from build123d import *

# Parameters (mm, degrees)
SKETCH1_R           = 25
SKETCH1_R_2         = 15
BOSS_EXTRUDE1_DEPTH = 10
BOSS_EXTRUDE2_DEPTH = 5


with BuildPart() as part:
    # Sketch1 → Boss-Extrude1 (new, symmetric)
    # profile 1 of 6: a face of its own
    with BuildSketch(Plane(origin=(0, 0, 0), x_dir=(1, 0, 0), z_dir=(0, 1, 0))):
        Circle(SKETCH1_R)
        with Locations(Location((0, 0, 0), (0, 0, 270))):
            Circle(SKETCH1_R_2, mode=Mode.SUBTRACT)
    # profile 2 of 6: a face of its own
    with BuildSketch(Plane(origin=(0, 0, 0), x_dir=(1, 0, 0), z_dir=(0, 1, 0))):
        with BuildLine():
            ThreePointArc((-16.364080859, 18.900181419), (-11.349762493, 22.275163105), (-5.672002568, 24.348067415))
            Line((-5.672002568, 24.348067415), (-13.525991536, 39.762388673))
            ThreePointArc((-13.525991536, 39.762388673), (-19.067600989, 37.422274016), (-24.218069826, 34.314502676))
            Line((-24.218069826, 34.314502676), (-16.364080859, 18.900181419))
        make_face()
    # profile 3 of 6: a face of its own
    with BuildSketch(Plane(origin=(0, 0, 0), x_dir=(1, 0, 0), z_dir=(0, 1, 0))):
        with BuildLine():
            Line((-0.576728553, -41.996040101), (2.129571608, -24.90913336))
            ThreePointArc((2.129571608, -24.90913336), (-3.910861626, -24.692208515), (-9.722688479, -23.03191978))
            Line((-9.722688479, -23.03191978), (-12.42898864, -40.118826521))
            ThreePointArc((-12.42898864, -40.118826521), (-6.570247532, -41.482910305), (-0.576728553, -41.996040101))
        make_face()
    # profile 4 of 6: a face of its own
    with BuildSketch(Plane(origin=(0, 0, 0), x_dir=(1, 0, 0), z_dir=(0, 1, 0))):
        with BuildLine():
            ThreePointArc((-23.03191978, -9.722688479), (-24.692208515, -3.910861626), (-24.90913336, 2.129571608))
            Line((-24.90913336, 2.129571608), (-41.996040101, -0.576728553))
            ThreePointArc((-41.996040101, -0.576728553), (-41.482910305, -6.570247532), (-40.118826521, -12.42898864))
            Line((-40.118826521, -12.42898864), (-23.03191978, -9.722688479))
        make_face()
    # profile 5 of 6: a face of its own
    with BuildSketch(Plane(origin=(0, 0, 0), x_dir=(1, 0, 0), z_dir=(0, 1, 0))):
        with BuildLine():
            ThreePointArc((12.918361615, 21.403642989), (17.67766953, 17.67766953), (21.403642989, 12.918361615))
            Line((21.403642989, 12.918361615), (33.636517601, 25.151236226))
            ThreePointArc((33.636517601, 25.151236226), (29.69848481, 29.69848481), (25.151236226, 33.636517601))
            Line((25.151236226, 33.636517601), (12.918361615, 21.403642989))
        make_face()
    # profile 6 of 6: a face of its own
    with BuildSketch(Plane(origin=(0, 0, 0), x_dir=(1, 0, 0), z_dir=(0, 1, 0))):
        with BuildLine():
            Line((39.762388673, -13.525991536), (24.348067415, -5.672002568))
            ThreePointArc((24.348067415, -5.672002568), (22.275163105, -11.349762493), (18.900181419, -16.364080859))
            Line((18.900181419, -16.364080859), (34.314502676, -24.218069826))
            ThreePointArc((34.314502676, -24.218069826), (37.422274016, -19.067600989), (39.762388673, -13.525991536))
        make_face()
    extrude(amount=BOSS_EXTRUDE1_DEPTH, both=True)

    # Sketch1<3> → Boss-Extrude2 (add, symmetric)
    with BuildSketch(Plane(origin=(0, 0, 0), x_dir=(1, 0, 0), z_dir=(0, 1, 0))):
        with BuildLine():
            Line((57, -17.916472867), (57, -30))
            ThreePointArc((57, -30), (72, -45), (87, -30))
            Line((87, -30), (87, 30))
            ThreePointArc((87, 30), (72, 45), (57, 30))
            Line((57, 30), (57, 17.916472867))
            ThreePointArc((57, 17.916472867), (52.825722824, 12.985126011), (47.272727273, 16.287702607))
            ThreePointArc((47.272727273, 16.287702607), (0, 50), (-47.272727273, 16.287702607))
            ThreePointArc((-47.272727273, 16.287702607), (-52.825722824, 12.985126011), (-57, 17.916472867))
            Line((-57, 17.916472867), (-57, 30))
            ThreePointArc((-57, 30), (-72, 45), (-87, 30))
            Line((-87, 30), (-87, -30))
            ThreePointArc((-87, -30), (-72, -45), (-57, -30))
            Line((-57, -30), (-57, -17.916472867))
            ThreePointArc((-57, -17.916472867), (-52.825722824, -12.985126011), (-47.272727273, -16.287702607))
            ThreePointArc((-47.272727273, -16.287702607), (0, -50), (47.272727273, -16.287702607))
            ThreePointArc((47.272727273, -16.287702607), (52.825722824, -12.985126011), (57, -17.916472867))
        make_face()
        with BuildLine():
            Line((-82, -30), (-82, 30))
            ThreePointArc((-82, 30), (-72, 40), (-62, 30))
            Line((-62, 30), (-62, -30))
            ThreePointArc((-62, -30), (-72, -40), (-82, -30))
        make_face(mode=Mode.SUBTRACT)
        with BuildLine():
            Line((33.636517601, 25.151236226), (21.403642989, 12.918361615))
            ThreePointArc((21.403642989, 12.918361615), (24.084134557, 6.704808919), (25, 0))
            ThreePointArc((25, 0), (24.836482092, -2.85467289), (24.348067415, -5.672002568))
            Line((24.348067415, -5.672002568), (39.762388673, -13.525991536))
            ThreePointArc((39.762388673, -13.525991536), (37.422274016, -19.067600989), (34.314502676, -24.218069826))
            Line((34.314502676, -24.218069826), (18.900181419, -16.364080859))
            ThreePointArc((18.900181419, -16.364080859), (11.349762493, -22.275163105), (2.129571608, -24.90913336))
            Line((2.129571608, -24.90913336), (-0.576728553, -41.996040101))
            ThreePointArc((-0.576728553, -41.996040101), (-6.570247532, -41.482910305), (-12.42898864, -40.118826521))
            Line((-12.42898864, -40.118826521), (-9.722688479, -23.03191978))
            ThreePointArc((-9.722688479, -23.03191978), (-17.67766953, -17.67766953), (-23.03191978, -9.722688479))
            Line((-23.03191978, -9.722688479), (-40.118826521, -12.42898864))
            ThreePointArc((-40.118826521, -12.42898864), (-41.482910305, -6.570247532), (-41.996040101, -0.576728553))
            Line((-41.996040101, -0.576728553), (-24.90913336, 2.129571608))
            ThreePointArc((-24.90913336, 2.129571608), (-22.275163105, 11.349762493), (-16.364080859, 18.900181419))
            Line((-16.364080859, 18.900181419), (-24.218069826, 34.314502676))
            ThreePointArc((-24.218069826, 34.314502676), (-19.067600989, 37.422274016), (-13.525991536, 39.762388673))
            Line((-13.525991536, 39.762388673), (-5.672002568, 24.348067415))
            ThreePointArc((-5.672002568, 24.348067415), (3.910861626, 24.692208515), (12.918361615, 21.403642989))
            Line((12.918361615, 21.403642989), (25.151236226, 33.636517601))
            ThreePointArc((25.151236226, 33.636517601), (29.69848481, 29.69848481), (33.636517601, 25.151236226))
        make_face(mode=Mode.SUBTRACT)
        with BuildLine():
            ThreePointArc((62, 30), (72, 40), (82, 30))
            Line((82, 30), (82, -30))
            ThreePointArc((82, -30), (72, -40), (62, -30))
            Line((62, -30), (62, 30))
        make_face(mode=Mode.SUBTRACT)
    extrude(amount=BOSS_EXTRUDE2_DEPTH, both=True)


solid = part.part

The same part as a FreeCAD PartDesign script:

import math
import FreeCAD as App
import Part
import Sketcher

V = App.Vector
Q = App.Units.Quantity

doc = App.newDocument("Part")
params = doc.addObject("Spreadsheet::Sheet", "Params")
for row, (alias, value) in enumerate([
    ("sketch1_diameter", "30 mm"),
    ("sketch1_radius", "42 mm"),
    ("sketch1_radius2", "25 mm"),
    ("pad1_length", "20 mm"),
    ("sketch2_radius", "15 mm"),
    ("sketch2_radius2", "5 mm"),
    ("sketch2_radius3", "50 mm"),
    ("sketch2_radius4", "42 mm"),
    ("sketch2_radius5", "25 mm"),
    ("pad2_length", "10 mm"),
], start=1):
    params.set(f"A{row}", alias)
    params.set(f"B{row}", "=" + value)
    params.setAlias(f"B{row}", alias)

body = doc.addObject("PartDesign::Body", "Body")

sketch1 = body.newObject("Sketcher::SketchObject", "Sketch")
sketch1.AttachmentSupport = (doc.getObject("XZ_Plane"), [""])
sketch1.MapMode = "FlatFace"
sketch1.addGeometry(Part.LineSegment(V(21.403643, -12.918362, 0), V(33.636518, -25.151236, 0)), False)
sketch1.addGeometry(Part.ArcOfCircle(Part.Circle(V(0, 0, 0), V(0, 0, 1), 42), math.radians(-53.213211), math.radians(-36.786789)), False)
sketch1.addGeometry(Part.LineSegment(V(25.151236, -33.636518, 0), V(12.918362, -21.403643, 0)), False)
sketch1.addGeometry(Part.ArcOfCircle(Part.Circle(V(0, 0, 0), V(0, 0, 1), 25), math.radians(-103.11346), math.radians(-58.88654)), False)
sketch1.addGeometry(Part.LineSegment(V(-5.672003, -24.348067, 0), V(-13.525992, -39.762389, 0)), False)
sketch1.addGeometry(Part.ArcOfCircle(Part.Circle(V(0, 0, 0), V(0, 0, 1), 42), math.radians(-125.213211), math.radians(-108.786789)), False)
sketch1.addGeometry(Part.LineSegment(V(-24.21807, -34.314503, 0), V(-16.364081, -18.900181, 0)), False)
sketch1.addGeometry(Part.ArcOfCircle(Part.Circle(V(0, 0, 0), V(0, 0, 1), 25), math.radians(-175.11346), math.radians(-130.88654)), False)
sketch1.addGeometry(Part.LineSegment(V(-24.909133, -2.129572, 0), V(-41.99604, 0.576729, 0)), False)
sketch1.addGeometry(Part.ArcOfCircle(Part.Circle(V(0, 0, 0), V(0, 0, 1), 42), math.radians(162.786789), math.radians(179.213211)), False)
sketch1.addGeometry(Part.LineSegment(V(-40.118827, 12.428989, 0), V(-23.03192, 9.722688, 0)), False)
sketch1.addGeometry(Part.ArcOfCircle(Part.Circle(V(0, 0, 0), V(0, 0, 1), 25), math.radians(112.88654), math.radians(157.11346)), False)
sketch1.addGeometry(Part.LineSegment(V(-9.722688, 23.03192, 0), V(-12.428989, 40.118827, 0)), False)
sketch1.addGeometry(Part.ArcOfCircle(Part.Circle(V(0, 0, 0), V(0, 0, 1), 42), math.radians(90.786789), math.radians(107.213211)), False)
sketch1.addGeometry(Part.LineSegment(V(-0.576729, 41.99604, 0), V(2.129572, 24.909133, 0)), False)
sketch1.addGeometry(Part.ArcOfCircle(Part.Circle(V(0, 0, 0), V(0, 0, 1), 25), math.radians(40.88654), math.radians(85.11346)), False)
sketch1.addGeometry(Part.LineSegment(V(18.900181, 16.364081, 0), V(34.314503, 24.21807, 0)), False)
sketch1.addGeometry(Part.ArcOfCircle(Part.Circle(V(0, 0, 0), V(0, 0, 1), 42), math.radians(18.786789), math.radians(35.213211)), False)
sketch1.addGeometry(Part.LineSegment(V(39.762389, 13.525992, 0), V(24.348067, 5.672003, 0)), False)
sketch1.addGeometry(Part.ArcOfCircle(Part.Circle(V(0, 0, 0), V(0, 0, 1), 25), math.radians(-31.11346), math.radians(13.11346)), False)
sketch1.addGeometry(Part.Circle(V(0, 0, 0), V(0, 0, 1), 15), False)
sketch1.addConstraint(Sketcher.Constraint("Coincident", 0, 2, 1, 2))
sketch1.addConstraint(Sketcher.Constraint("Coincident", 1, 1, 2, 1))
sketch1.addConstraint(Sketcher.Constraint("Coincident", 2, 2, 3, 2))
sketch1.addConstraint(Sketcher.Constraint("Coincident", 3, 1, 4, 1))
sketch1.addConstraint(Sketcher.Constraint("Coincident", 4, 2, 5, 2))
sketch1.addConstraint(Sketcher.Constraint("Coincident", 5, 1, 6, 1))
sketch1.addConstraint(Sketcher.Constraint("Coincident", 6, 2, 7, 2))
sketch1.addConstraint(Sketcher.Constraint("Coincident", 7, 1, 8, 1))
sketch1.addConstraint(Sketcher.Constraint("Coincident", 8, 2, 9, 2))
sketch1.addConstraint(Sketcher.Constraint("Coincident", 9, 1, 10, 1))
sketch1.addConstraint(Sketcher.Constraint("Coincident", 10, 2, 11, 2))
sketch1.addConstraint(Sketcher.Constraint("Coincident", 11, 1, 12, 1))
sketch1.addConstraint(Sketcher.Constraint("Coincident", 12, 2, 13, 2))
sketch1.addConstraint(Sketcher.Constraint("Coincident", 13, 1, 14, 1))
sketch1.addConstraint(Sketcher.Constraint("Coincident", 14, 2, 15, 2))
sketch1.addConstraint(Sketcher.Constraint("Coincident", 15, 1, 16, 1))
sketch1.addConstraint(Sketcher.Constraint("Coincident", 16, 2, 17, 2))
sketch1.addConstraint(Sketcher.Constraint("Coincident", 17, 1, 18, 1))
sketch1.addConstraint(Sketcher.Constraint("Coincident", 18, 2, 19, 2))
sketch1.addConstraint(Sketcher.Constraint("Coincident", 19, 1, 0, 1))
sketch1.addConstraint(Sketcher.Constraint("Coincident", 1, 3, -1, 1))
sketch1.addConstraint(Sketcher.Constraint("Coincident", 3, 3, -1, 1))
sketch1.addConstraint(Sketcher.Constraint("Coincident", 5, 3, -1, 1))
sketch1.addConstraint(Sketcher.Constraint("Coincident", 7, 3, -1, 1))
sketch1.addConstraint(Sketcher.Constraint("Coincident", 9, 3, -1, 1))
sketch1.addConstraint(Sketcher.Constraint("Coincident", 11, 3, -1, 1))
sketch1.addConstraint(Sketcher.Constraint("Coincident", 13, 3, -1, 1))
sketch1.addConstraint(Sketcher.Constraint("Coincident", 15, 3, -1, 1))
sketch1.addConstraint(Sketcher.Constraint("Coincident", 17, 3, -1, 1))
sketch1.addConstraint(Sketcher.Constraint("Coincident", 19, 3, -1, 1))
sketch1.addConstraint(Sketcher.Constraint("Coincident", 20, 3, -1, 1))
sketch1.addConstraint(Sketcher.Constraint("Equal", 1, 5))
sketch1.addConstraint(Sketcher.Constraint("Equal", 3, 7))
sketch1.addConstraint(Sketcher.Constraint("Equal", 5, 9))
sketch1.addConstraint(Sketcher.Constraint("Equal", 7, 11))
sketch1.addConstraint(Sketcher.Constraint("Equal", 9, 13))
sketch1.addConstraint(Sketcher.Constraint("Equal", 11, 15))
sketch1.addConstraint(Sketcher.Constraint("Equal", 13, 17))
sketch1.addConstraint(Sketcher.Constraint("Equal", 15, 19))
sketch1.addConstraint(Sketcher.Constraint("Parallel", 0, 2))
sketch1.addConstraint(Sketcher.Constraint("Parallel", 4, 6))
sketch1.addConstraint(Sketcher.Constraint("Parallel", 8, 10))
sketch1.addConstraint(Sketcher.Constraint("Parallel", 12, 14))
sketch1.addConstraint(Sketcher.Constraint("Parallel", 16, 18))
sketch1.addConstraint(Sketcher.Constraint("Equal", 0, 2))
sketch1.addConstraint(Sketcher.Constraint("Equal", 2, 4))
sketch1.addConstraint(Sketcher.Constraint("Equal", 4, 6))
sketch1.addConstraint(Sketcher.Constraint("Equal", 6, 8))
sketch1.addConstraint(Sketcher.Constraint("Equal", 8, 10))
sketch1.addConstraint(Sketcher.Constraint("Equal", 10, 12))
sketch1.addConstraint(Sketcher.Constraint("Equal", 12, 14))
sketch1.addConstraint(Sketcher.Constraint("Equal", 14, 16))
sketch1.addConstraint(Sketcher.Constraint("Equal", 16, 18))
sketch1.addConstraint(Sketcher.Constraint("Diameter", 20, Q("30 mm")))
sketch1.addConstraint(Sketcher.Constraint("Radius", 1, Q("42 mm")))
sketch1.addConstraint(Sketcher.Constraint("Radius", 3, Q("25 mm")))
sketch1.addConstraint(Sketcher.Constraint("Angle", 0, Q("-45 deg")))
sketch1.addConstraint(Sketcher.Constraint("Angle", 4, Q("-117 deg")))
sketch1.addConstraint(Sketcher.Constraint("Angle", 8, Q("171 deg")))
sketch1.addConstraint(Sketcher.Constraint("Angle", 12, Q("99 deg")))
sketch1.addConstraint(Sketcher.Constraint("Angle", 16, Q("27 deg")))
sketch1.addConstraint(Sketcher.Constraint("DistanceX", -1, 1, 2, 2, Q("12.918362 mm")))
sketch1.setExpression("Constraints[53]", "Params.sketch1_diameter")
sketch1.setExpression("Constraints[54]", "Params.sketch1_radius")
sketch1.setExpression("Constraints[55]", "Params.sketch1_radius2")
pad1 = body.newObject("PartDesign::Pad", "Pad")
pad1.Profile = sketch1
pad1.setExpression("Length", "Params.pad1_length")
pad1.Midplane = True

sketch2 = body.newObject("Sketcher::SketchObject", "Sketch001")
sketch2.AttachmentSupport = (doc.getObject("XZ_Plane"), [""])
sketch2.MapMode = "FlatFace"
sketch2.addGeometry(Part.LineSegment(V(57, 17.916473, 0), V(57, 30, 0)), False)
sketch2.addGeometry(Part.ArcOfCircle(Part.Circle(V(72, 30, 0), V(0, 0, 1), 15), math.radians(0), math.radians(180)), False)
sketch2.addGeometry(Part.LineSegment(V(87, 30, 0), V(87, -30, 0)), False)
sketch2.addGeometry(Part.ArcOfCircle(Part.Circle(V(72, -30, 0), V(0, 0, 1), 15), math.radians(180), math.radians(360)), False)
sketch2.addGeometry(Part.LineSegment(V(57, -30, 0), V(57, -17.916473, 0)), False)
sketch2.addGeometry(Part.ArcOfCircle(Part.Circle(V(52, -17.916473, 0), V(0, 0, 1), 5), math.radians(0), math.radians(160.988735)), False)
sketch2.addGeometry(Part.ArcOfCircle(Part.Circle(V(0, 0, 0), V(0, 0, 1), 50), math.radians(-160.988735), math.radians(-19.011265)), False)
sketch2.addGeometry(Part.ArcOfCircle(Part.Circle(V(-52, -17.916473, 0), V(0, 0, 1), 5), math.radians(19.011265), math.radians(180)), False)
sketch2.addGeometry(Part.LineSegment(V(-57, -17.916473, 0), V(-57, -30, 0)), False)
sketch2.addGeometry(Part.ArcOfCircle(Part.Circle(V(-72, -30, 0), V(0, 0, 1), 15), math.radians(180), math.radians(360)), False)
sketch2.addGeometry(Part.LineSegment(V(-87, -30, 0), V(-87, 30, 0)), False)
sketch2.addGeometry(Part.ArcOfCircle(Part.Circle(V(-72, 30, 0), V(0, 0, 1), 15), math.radians(0), math.radians(180)), False)
sketch2.addGeometry(Part.LineSegment(V(-57, 30, 0), V(-57, 17.916473, 0)), False)
sketch2.addGeometry(Part.ArcOfCircle(Part.Circle(V(-52, 17.916473, 0), V(0, 0, 1), 5), math.radians(180), math.radians(340.988735)), False)
sketch2.addGeometry(Part.ArcOfCircle(Part.Circle(V(0, 0, 0), V(0, 0, 1), 50), math.radians(19.011265), math.radians(160.988735)), False)
sketch2.addGeometry(Part.ArcOfCircle(Part.Circle(V(52, 17.916473, 0), V(0, 0, 1), 5), math.radians(-160.988735), math.radians(0)), False)
sketch2.addGeometry(Part.ArcOfCircle(Part.Circle(V(0, 0, 0), V(0, 0, 1), 42), math.radians(-53.213211), math.radians(-36.786789)), False)
sketch2.addGeometry(Part.LineSegment(V(33.636518, -25.151236, 0), V(21.403643, -12.918362, 0)), False)
sketch2.addGeometry(Part.ArcOfCircle(Part.Circle(V(0, 0, 0), V(0, 0, 1), 25), math.radians(-31.11346), math.radians(0)), False)
sketch2.addGeometry(Part.ArcOfCircle(Part.Circle(V(0, 0, 0), V(0, 0, 1), 25), math.radians(0), math.radians(13.11346)), False)
sketch2.addGeometry(Part.LineSegment(V(24.348067, 5.672003, 0), V(39.762389, 13.525992, 0)), False)
sketch2.addGeometry(Part.ArcOfCircle(Part.Circle(V(0, 0, 0), V(0, 0, 1), 42), math.radians(18.786789), math.radians(35.213211)), False)
sketch2.addGeometry(Part.LineSegment(V(34.314503, 24.21807, 0), V(18.900181, 16.364081, 0)), False)
sketch2.addGeometry(Part.ArcOfCircle(Part.Circle(V(0, 0, 0), V(0, 0, 1), 25), math.radians(40.88654), math.radians(85.11346)), False)
sketch2.addGeometry(Part.LineSegment(V(2.129572, 24.909133, 0), V(-0.576729, 41.99604, 0)), False)
sketch2.addGeometry(Part.ArcOfCircle(Part.Circle(V(0, 0, 0), V(0, 0, 1), 42), math.radians(90.786789), math.radians(107.213211)), False)
sketch2.addGeometry(Part.LineSegment(V(-12.428989, 40.118827, 0), V(-9.722688, 23.03192, 0)), False)
sketch2.addGeometry(Part.ArcOfCircle(Part.Circle(V(0, 0, 0), V(0, 0, 1), 25), math.radians(112.88654), math.radians(157.11346)), False)
sketch2.addGeometry(Part.LineSegment(V(-23.03192, 9.722688, 0), V(-40.118827, 12.428989, 0)), False)
sketch2.addGeometry(Part.ArcOfCircle(Part.Circle(V(0, 0, 0), V(0, 0, 1), 42), math.radians(162.786789), math.radians(179.213211)), False)
sketch2.addGeometry(Part.LineSegment(V(-41.99604, 0.576729, 0), V(-24.909133, -2.129572, 0)), False)
sketch2.addGeometry(Part.ArcOfCircle(Part.Circle(V(0, 0, 0), V(0, 0, 1), 25), math.radians(-175.11346), math.radians(-130.88654)), False)
sketch2.addGeometry(Part.LineSegment(V(-16.364081, -18.900181, 0), V(-24.21807, -34.314503, 0)), False)
sketch2.addGeometry(Part.ArcOfCircle(Part.Circle(V(0, 0, 0), V(0, 0, 1), 42), math.radians(-125.213211), math.radians(-108.786789)), False)
sketch2.addGeometry(Part.LineSegment(V(-13.525992, -39.762389, 0), V(-5.672003, -24.348067, 0)), False)
sketch2.addGeometry(Part.ArcOfCircle(Part.Circle(V(0, 0, 0), V(0, 0, 1), 25), math.radians(-103.11346), math.radians(-58.88654)), False)
sketch2.addGeometry(Part.LineSegment(V(12.918362, -21.403643, 0), V(25.151236, -33.636518, 0)), False)
sketch2.addGeometry(Part.ArcOfCircle(Part.Circle(V(-72, 30, 0), V(0, 0, 1), 10), math.radians(0), math.radians(180)), False)
sketch2.addGeometry(Part.LineSegment(V(-82, 30, 0), V(-82, -30, 0)), False)
sketch2.addGeometry(Part.ArcOfCircle(Part.Circle(V(-72, -30, 0), V(0, 0, 1), 10), math.radians(180), math.radians(360)), False)
sketch2.addGeometry(Part.LineSegment(V(-62, -30, 0), V(-62, 30, 0)), False)
sketch2.addGeometry(Part.LineSegment(V(62, 30, 0), V(62, -30, 0)), False)
sketch2.addGeometry(Part.ArcOfCircle(Part.Circle(V(72, -30, 0), V(0, 0, 1), 10), math.radians(180), math.radians(360)), False)
sketch2.addGeometry(Part.LineSegment(V(82, -30, 0), V(82, 30, 0)), False)
sketch2.addGeometry(Part.ArcOfCircle(Part.Circle(V(72, 30, 0), V(0, 0, 1), 10), math.radians(0), math.radians(180)), False)
sketch2.addConstraint(Sketcher.Constraint("Tangent", 0, 2, 1, 2))
sketch2.addConstraint(Sketcher.Constraint("Tangent", 1, 1, 2, 1))
sketch2.addConstraint(Sketcher.Constraint("Tangent", 2, 2, 3, 2))
sketch2.addConstraint(Sketcher.Constraint("Tangent", 3, 1, 4, 1))
sketch2.addConstraint(Sketcher.Constraint("Tangent", 4, 2, 5, 1))
sketch2.addConstraint(Sketcher.Constraint("Tangent", 5, 2, 6, 2))
sketch2.addConstraint(Sketcher.Constraint("Tangent", 6, 1, 7, 1))
sketch2.addConstraint(Sketcher.Constraint("Tangent", 7, 2, 8, 1))
sketch2.addConstraint(Sketcher.Constraint("Tangent", 8, 2, 9, 2))
sketch2.addConstraint(Sketcher.Constraint("Tangent", 9, 1, 10, 1))
sketch2.addConstraint(Sketcher.Constraint("Tangent", 10, 2, 11, 2))
sketch2.addConstraint(Sketcher.Constraint("Tangent", 11, 1, 12, 1))
sketch2.addConstraint(Sketcher.Constraint("Tangent", 12, 2, 13, 1))
sketch2.addConstraint(Sketcher.Constraint("Tangent", 13, 2, 14, 2))
sketch2.addConstraint(Sketcher.Constraint("Tangent", 14, 1, 15, 1))
sketch2.addConstraint(Sketcher.Constraint("Tangent", 15, 2, 0, 1))
sketch2.addConstraint(Sketcher.Constraint("Coincident", 16, 2, 17, 1))
sketch2.addConstraint(Sketcher.Constraint("Coincident", 17, 2, 18, 1))
sketch2.addConstraint(Sketcher.Constraint("Tangent", 18, 2, 19, 1))
sketch2.addConstraint(Sketcher.Constraint("Coincident", 19, 2, 20, 1))
sketch2.addConstraint(Sketcher.Constraint("Coincident", 20, 2, 21, 1))
sketch2.addConstraint(Sketcher.Constraint("Coincident", 21, 2, 22, 1))
sketch2.addConstraint(Sketcher.Constraint("Coincident", 22, 2, 23, 1))
sketch2.addConstraint(Sketcher.Constraint("Coincident", 23, 2, 24, 1))
sketch2.addConstraint(Sketcher.Constraint("Coincident", 24, 2, 25, 1))
sketch2.addConstraint(Sketcher.Constraint("Coincident", 25, 2, 26, 1))
sketch2.addConstraint(Sketcher.Constraint("Coincident", 26, 2, 27, 1))
sketch2.addConstraint(Sketcher.Constraint("Coincident", 27, 2, 28, 1))
sketch2.addConstraint(Sketcher.Constraint("Coincident", 28, 2, 29, 1))
sketch2.addConstraint(Sketcher.Constraint("Coincident", 29, 2, 30, 1))
sketch2.addConstraint(Sketcher.Constraint("Coincident", 30, 2, 31, 1))
sketch2.addConstraint(Sketcher.Constraint("Coincident", 31, 2, 32, 1))
sketch2.addConstraint(Sketcher.Constraint("Coincident", 32, 2, 33, 1))
sketch2.addConstraint(Sketcher.Constraint("Coincident", 33, 2, 34, 1))
sketch2.addConstraint(Sketcher.Constraint("Coincident", 34, 2, 35, 1))
sketch2.addConstraint(Sketcher.Constraint("Coincident", 35, 2, 36, 1))
sketch2.addConstraint(Sketcher.Constraint("Coincident", 36, 2, 16, 1))
sketch2.addConstraint(Sketcher.Constraint("Tangent", 37, 2, 38, 1))
sketch2.addConstraint(Sketcher.Constraint("Tangent", 38, 2, 39, 1))
sketch2.addConstraint(Sketcher.Constraint("Tangent", 39, 2, 40, 1))
sketch2.addConstraint(Sketcher.Constraint("Tangent", 40, 2, 37, 1))
sketch2.addConstraint(Sketcher.Constraint("Tangent", 41, 2, 42, 1))
sketch2.addConstraint(Sketcher.Constraint("Tangent", 42, 2, 43, 1))
sketch2.addConstraint(Sketcher.Constraint("Tangent", 43, 2, 44, 1))
sketch2.addConstraint(Sketcher.Constraint("Tangent", 44, 2, 41, 1))
sketch2.addConstraint(Sketcher.Constraint("Vertical", 0))
sketch2.addConstraint(Sketcher.Constraint("Vertical", 2))
sketch2.addConstraint(Sketcher.Constraint("Vertical", 4))
sketch2.addConstraint(Sketcher.Constraint("Vertical", 8))
sketch2.addConstraint(Sketcher.Constraint("Vertical", 10))
sketch2.addConstraint(Sketcher.Constraint("Vertical", 12))
sketch2.addConstraint(Sketcher.Constraint("Vertical", 38))
sketch2.addConstraint(Sketcher.Constraint("Vertical", 40))
sketch2.addConstraint(Sketcher.Constraint("Vertical", 41))
sketch2.addConstraint(Sketcher.Constraint("Vertical", 43))
sketch2.addConstraint(Sketcher.Constraint("Coincident", 6, 3, -1, 1))
sketch2.addConstraint(Sketcher.Constraint("Coincident", 14, 3, -1, 1))
sketch2.addConstraint(Sketcher.Constraint("Coincident", 16, 3, -1, 1))
sketch2.addConstraint(Sketcher.Constraint("Coincident", 18, 3, -1, 1))
sketch2.addConstraint(Sketcher.Constraint("Coincident", 21, 3, -1, 1))
sketch2.addConstraint(Sketcher.Constraint("Coincident", 23, 3, -1, 1))
sketch2.addConstraint(Sketcher.Constraint("Coincident", 25, 3, -1, 1))
sketch2.addConstraint(Sketcher.Constraint("Coincident", 27, 3, -1, 1))
sketch2.addConstraint(Sketcher.Constraint("Coincident", 29, 3, -1, 1))
sketch2.addConstraint(Sketcher.Constraint("Coincident", 31, 3, -1, 1))
sketch2.addConstraint(Sketcher.Constraint("Coincident", 33, 3, -1, 1))
sketch2.addConstraint(Sketcher.Constraint("Coincident", 35, 3, -1, 1))
sketch2.addConstraint(Sketcher.Constraint("Coincident", 37, 3, 11, 3))
sketch2.addConstraint(Sketcher.Constraint("Coincident", 39, 3, 9, 3))
sketch2.addConstraint(Sketcher.Constraint("Coincident", 42, 3, 3, 3))
sketch2.addConstraint(Sketcher.Constraint("Coincident", 44, 3, 1, 3))
sketch2.addConstraint(Sketcher.Constraint("Equal", 5, 7))
sketch2.addConstraint(Sketcher.Constraint("Equal", 3, 9))
sketch2.addConstraint(Sketcher.Constraint("Equal", 7, 13))
sketch2.addConstraint(Sketcher.Constraint("Equal", 6, 14))
sketch2.addConstraint(Sketcher.Constraint("Equal", 13, 15))
sketch2.addConstraint(Sketcher.Constraint("Equal", 18, 19))
sketch2.addConstraint(Sketcher.Constraint("Equal", 16, 21))
sketch2.addConstraint(Sketcher.Constraint("Equal", 19, 23))
sketch2.addConstraint(Sketcher.Constraint("Equal", 21, 25))
sketch2.addConstraint(Sketcher.Constraint("Equal", 23, 27))
sketch2.addConstraint(Sketcher.Constraint("Equal", 25, 29))
sketch2.addConstraint(Sketcher.Constraint("Equal", 27, 31))
sketch2.addConstraint(Sketcher.Constraint("Equal", 29, 33))
sketch2.addConstraint(Sketcher.Constraint("Equal", 31, 35))
sketch2.addConstraint(Sketcher.Constraint("Equal", 39, 42))
sketch2.addConstraint(Sketcher.Constraint("Symmetric", 1, 3, 9, 3, -1, 1))
sketch2.addConstraint(Sketcher.Constraint("PointOnObject", 18, 2, -1))
sketch2.addConstraint(Sketcher.Constraint("Parallel", 20, 22))
sketch2.addConstraint(Sketcher.Constraint("Parallel", 24, 26))
sketch2.addConstraint(Sketcher.Constraint("Parallel", 28, 30))
sketch2.addConstraint(Sketcher.Constraint("Parallel", 32, 34))
sketch2.addConstraint(Sketcher.Constraint("Parallel", 17, 36))
sketch2.addConstraint(Sketcher.Constraint("Horizontal", 3, 3, 9, 3))
sketch2.addConstraint(Sketcher.Constraint("Horizontal", 1, 3, 11, 3))
sketch2.addConstraint(Sketcher.Constraint("Equal", 17, 20))
sketch2.addConstraint(Sketcher.Constraint("Equal", 20, 22))
sketch2.addConstraint(Sketcher.Constraint("Equal", 22, 24))
sketch2.addConstraint(Sketcher.Constraint("Equal", 24, 26))
sketch2.addConstraint(Sketcher.Constraint("Equal", 26, 28))
sketch2.addConstraint(Sketcher.Constraint("Equal", 28, 30))
sketch2.addConstraint(Sketcher.Constraint("Equal", 30, 32))
sketch2.addConstraint(Sketcher.Constraint("Equal", 32, 34))
sketch2.addConstraint(Sketcher.Constraint("Equal", 34, 36))
sketch2.addConstraint(Sketcher.Constraint("Radius", 1, Q("15 mm")))
sketch2.addConstraint(Sketcher.Constraint("Radius", 5, Q("5 mm")))
sketch2.addConstraint(Sketcher.Constraint("Radius", 6, Q("50 mm")))
sketch2.addConstraint(Sketcher.Constraint("Radius", 16, Q("42 mm")))
sketch2.addConstraint(Sketcher.Constraint("Radius", 18, Q("25 mm")))
sketch2.addConstraint(Sketcher.Constraint("Radius", 37, Q("10 mm")))
sketch2.addConstraint(Sketcher.Constraint("DistanceY", 2, 2, 2, 1, Q("60 mm")))
sketch2.addConstraint(Sketcher.Constraint("Angle", 17, Q("135 deg")))
sketch2.addConstraint(Sketcher.Constraint("Angle", 20, Q("27 deg")))
sketch2.addConstraint(Sketcher.Constraint("Angle", 24, Q("99 deg")))
sketch2.addConstraint(Sketcher.Constraint("Angle", 28, Q("171 deg")))
sketch2.addConstraint(Sketcher.Constraint("Angle", 32, Q("-117 deg")))
sketch2.addConstraint(Sketcher.Constraint("DistanceX", -1, 1, 1, 3, Q("72 mm")))
sketch2.addConstraint(Sketcher.Constraint("DistanceY", 17, 2, -1, 1, Q("12.918362 mm")))
sketch2.setExpression("Constraints[104]", "Params.sketch2_radius")
sketch2.setExpression("Constraints[105]", "Params.sketch2_radius2")
sketch2.setExpression("Constraints[106]", "Params.sketch2_radius3")
sketch2.setExpression("Constraints[107]", "Params.sketch2_radius4")
sketch2.setExpression("Constraints[108]", "Params.sketch2_radius5")
pad2 = body.newObject("PartDesign::Pad", "Pad001")
pad2.Profile = sketch2
pad2.setExpression("Length", "Params.pad2_length")
pad2.Midplane = True

doc.recompute()
